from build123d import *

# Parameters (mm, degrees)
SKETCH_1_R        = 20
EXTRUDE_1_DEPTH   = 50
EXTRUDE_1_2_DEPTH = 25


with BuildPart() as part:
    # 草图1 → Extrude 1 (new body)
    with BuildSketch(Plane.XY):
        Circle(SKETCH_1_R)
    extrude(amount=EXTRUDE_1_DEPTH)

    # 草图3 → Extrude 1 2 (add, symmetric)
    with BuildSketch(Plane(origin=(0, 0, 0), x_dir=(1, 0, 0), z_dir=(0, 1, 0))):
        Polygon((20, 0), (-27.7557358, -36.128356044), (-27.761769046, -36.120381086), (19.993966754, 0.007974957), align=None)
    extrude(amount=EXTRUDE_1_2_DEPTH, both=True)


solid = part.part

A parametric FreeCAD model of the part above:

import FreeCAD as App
import Part
import Sketcher

V = App.Vector

doc = App.newDocument("Part")
body = doc.addObject("PartDesign::Body", "Body")

# Sketch on XY plane
sketch1 = body.newObject("Sketcher::SketchObject", "Sketch")
sketch1.AttachmentSupport = (doc.getObject("XY_Plane"), [""])
sketch1.MapMode = "FlatFace"
sketch1.addGeometry(Part.Circle(V(0, 0, 0), V(0, 0, 1), 20), False)
sketch1.addConstraint([
    Sketcher.Constraint("Coincident", 0, 3, -1, 1),
    Sketcher.Constraint("Diameter", 0, 40.0),
])
pad1 = body.newObject("PartDesign::Pad", "Pad")
pad1.Profile = sketch1
pad1.Length = 50

# Sketch on XZ plane
sketch2 = body.newObject("Sketcher::SketchObject", "Sketch001")
sketch2.AttachmentSupport = (doc.getObject("XZ_Plane"), [""])
sketch2.MapMode = "FlatFace"
sketch2.addGeometry([
    Part.LineSegment(V(-27.756, 36.128, 0), V(20, 0, 0)),
    Part.LineSegment(V(20, 0, 0), V(19.994, -0.008, 0)),
    Part.LineSegment(V(19.994, -0.008, 0), V(-27.762, 36.12, 0)),
    Part.LineSegment(V(-27.762, 36.12, 0), V(-27.756, 36.128, 0)),
], False)
sketch2.addConstraint([
    Sketcher.Constraint("Coincident", 0, 2, 1, 1),
    Sketcher.Constraint("Coincident", 1, 2, 2, 1),
    Sketcher.Constraint("Coincident", 2, 2, 3, 1),
    Sketcher.Constraint("Coincident", 3, 2, 0, 1),
    Sketcher.Constraint("PointOnObject", 0, 2, -1),
    Sketcher.Constraint("Perpendicular", 0, 1),
    Sketcher.Constraint("Parallel", 0, 2),
    Sketcher.Constraint("Perpendicular", 2, 3),
    Sketcher.Constraint("DistanceX", -1, 1, 0, 2, 20.0),
    Sketcher.Constraint("Distance", 1, 0.01),
    Sketcher.Constraint("Distance", 0, 59.882121),
    Sketcher.Constraint("DistanceX", 2, 2, -1, 1, 27.761769),
])
pad2 = body.newObject("PartDesign::Pad", "Pad001")
pad2.Profile = sketch2
pad2.Length = 50
pad2.Midplane = True

doc.recompute()
